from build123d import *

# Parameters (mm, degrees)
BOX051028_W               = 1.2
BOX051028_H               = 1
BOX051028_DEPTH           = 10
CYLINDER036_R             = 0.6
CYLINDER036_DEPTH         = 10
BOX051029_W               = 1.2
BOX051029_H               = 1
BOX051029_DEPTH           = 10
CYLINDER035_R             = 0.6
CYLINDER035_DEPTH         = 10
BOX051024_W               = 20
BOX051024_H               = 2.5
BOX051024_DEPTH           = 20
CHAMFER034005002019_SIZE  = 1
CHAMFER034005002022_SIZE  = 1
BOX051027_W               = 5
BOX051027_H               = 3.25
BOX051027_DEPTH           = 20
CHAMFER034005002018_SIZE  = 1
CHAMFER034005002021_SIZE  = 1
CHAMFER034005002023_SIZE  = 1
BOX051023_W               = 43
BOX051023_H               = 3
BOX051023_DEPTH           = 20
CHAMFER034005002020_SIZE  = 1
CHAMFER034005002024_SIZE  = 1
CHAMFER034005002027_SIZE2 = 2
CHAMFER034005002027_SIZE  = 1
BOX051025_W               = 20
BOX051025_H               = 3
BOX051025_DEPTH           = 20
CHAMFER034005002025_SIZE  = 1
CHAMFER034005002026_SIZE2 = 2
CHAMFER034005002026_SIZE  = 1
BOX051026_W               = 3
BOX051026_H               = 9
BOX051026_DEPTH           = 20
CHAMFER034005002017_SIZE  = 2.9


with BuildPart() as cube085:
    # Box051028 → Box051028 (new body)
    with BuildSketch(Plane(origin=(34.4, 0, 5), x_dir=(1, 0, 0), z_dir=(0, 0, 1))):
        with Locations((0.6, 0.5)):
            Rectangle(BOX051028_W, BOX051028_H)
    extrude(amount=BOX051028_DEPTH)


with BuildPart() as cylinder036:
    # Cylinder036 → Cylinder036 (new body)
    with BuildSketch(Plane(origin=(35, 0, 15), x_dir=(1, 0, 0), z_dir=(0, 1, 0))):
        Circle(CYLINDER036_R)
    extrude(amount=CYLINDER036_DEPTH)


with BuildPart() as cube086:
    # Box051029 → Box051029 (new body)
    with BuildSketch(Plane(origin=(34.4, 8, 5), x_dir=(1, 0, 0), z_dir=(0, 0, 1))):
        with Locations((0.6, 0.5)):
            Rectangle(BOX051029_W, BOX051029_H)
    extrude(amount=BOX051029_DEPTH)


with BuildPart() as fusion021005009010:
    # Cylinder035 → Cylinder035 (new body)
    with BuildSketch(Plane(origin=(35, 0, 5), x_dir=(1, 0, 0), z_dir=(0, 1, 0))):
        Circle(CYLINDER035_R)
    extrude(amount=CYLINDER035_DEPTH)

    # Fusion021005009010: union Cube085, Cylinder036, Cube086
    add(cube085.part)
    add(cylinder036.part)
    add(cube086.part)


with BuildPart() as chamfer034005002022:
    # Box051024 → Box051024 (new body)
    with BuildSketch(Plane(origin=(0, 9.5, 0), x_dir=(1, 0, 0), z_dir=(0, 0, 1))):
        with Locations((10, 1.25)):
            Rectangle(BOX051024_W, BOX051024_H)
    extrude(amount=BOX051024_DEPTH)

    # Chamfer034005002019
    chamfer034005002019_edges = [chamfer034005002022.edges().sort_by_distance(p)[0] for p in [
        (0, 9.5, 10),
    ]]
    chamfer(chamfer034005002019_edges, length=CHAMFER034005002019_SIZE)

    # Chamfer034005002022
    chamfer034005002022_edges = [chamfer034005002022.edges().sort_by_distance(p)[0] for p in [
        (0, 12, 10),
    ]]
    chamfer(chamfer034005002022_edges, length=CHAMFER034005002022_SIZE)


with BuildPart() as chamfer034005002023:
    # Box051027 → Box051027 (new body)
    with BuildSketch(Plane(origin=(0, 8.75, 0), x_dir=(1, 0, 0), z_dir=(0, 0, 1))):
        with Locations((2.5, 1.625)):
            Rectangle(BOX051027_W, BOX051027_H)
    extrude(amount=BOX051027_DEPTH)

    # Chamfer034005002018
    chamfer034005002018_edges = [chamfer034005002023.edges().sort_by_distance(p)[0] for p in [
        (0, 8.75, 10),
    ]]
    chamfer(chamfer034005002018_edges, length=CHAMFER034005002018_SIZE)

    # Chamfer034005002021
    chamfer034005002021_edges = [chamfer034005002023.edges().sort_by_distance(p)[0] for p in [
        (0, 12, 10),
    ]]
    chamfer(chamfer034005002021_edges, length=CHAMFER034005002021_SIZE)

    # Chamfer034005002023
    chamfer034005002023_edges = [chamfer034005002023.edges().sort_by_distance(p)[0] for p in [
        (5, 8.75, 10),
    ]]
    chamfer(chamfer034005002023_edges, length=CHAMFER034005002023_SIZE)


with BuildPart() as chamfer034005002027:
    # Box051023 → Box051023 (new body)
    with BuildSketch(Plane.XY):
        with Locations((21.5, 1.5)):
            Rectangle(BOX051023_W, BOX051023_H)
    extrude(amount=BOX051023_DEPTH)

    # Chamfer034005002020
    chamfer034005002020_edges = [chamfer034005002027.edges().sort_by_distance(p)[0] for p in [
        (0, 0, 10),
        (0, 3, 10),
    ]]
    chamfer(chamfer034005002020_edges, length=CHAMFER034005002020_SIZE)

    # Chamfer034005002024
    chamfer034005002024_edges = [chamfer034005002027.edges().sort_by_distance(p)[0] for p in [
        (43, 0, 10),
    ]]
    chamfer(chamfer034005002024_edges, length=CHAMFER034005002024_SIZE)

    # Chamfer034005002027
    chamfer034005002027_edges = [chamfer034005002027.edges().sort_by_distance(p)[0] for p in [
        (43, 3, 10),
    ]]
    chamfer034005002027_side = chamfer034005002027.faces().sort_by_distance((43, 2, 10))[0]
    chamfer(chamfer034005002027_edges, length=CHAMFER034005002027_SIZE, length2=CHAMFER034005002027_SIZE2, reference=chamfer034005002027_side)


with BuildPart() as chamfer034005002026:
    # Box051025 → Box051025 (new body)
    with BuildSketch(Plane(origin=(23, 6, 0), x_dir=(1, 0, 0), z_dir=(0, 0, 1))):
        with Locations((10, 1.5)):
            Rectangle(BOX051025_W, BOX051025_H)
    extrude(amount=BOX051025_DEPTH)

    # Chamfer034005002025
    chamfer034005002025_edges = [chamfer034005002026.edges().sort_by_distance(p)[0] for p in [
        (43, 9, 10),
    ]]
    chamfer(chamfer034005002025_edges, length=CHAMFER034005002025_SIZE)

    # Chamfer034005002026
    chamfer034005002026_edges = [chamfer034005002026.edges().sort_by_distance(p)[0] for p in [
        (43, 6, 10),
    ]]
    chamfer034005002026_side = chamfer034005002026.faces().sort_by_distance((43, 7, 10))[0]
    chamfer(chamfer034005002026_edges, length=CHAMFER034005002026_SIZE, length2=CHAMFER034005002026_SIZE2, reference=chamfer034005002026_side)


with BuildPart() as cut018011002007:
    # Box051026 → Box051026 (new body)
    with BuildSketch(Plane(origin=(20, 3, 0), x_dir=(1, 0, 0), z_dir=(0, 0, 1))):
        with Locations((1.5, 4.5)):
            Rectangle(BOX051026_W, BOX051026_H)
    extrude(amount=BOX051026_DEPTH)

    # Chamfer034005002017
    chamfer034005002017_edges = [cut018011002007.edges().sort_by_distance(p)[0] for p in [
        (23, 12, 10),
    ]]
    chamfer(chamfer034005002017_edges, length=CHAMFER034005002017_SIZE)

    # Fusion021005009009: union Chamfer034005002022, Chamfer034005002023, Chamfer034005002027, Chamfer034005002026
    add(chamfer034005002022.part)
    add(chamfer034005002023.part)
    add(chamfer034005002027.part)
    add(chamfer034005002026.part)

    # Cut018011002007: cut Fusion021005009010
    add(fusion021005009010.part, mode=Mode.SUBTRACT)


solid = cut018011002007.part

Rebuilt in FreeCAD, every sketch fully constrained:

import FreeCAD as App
import Part
import Sketcher
from FreeCAD import Vector


def edges_at(feature, points):
    """Names of the edges that pass closest to the given points."""
    edges = feature.Shape.Edges
    near = lambda p: min(range(len(edges)), key=lambda i: edges[i].distToShape(Part.Vertex(*p))[0])
    return sorted({f"Edge{near(p) + 1}" for p in points})

doc = App.newDocument("Part")
body = doc.addObject("PartDesign::Body", "Body")

# Sketch on XY plane
sketch1 = body.newObject("Sketcher::SketchObject", "Sketch")
sketch1.AttachmentSupport = (doc.getObject("XY_Plane"), [""])
sketch1.MapMode = "FlatFace"
sketch1.AttachmentOffset = App.Placement(Vector(0, 0, 5), App.Rotation())
sketch1.addGeometry(Part.LineSegment(Vector(34.4, 1, 0), Vector(34.4, 0, 0)), False)
sketch1.addGeometry(Part.LineSegment(Vector(34.4, 0, 0), Vector(35.6, 0, 0)), False)
sketch1.addGeometry(Part.LineSegment(Vector(35.6, 0, 0), Vector(35.6, 1, 0)), False)
sketch1.addGeometry(Part.LineSegment(Vector(35.6, 1, 0), Vector(34.4, 1, 0)), False)
sketch1.addConstraint(Sketcher.Constraint("Coincident", 0, 2, 1, 1))
sketch1.addConstraint(Sketcher.Constraint("Coincident", 1, 2, 2, 1))
sketch1.addConstraint(Sketcher.Constraint("Coincident", 2, 2, 3, 1))
sketch1.addConstraint(Sketcher.Constraint("Coincident", 3, 2, 0, 1))
sketch1.addConstraint(Sketcher.Constraint("Vertical", 0))
sketch1.addConstraint(Sketcher.Constraint("Horizontal", 1))
sketch1.addConstraint(Sketcher.Constraint("Vertical", 2))
sketch1.addConstraint(Sketcher.Constraint("Horizontal", 3))
sketch1.addConstraint(Sketcher.Constraint("PointOnObject", 0, 2, -1))
sketch1.addConstraint(Sketcher.Constraint("DistanceY", 0, 2, 0, 1, 1.0))
sketch1.addConstraint(Sketcher.Constraint("DistanceX", 1, 1, 1, 2, 1.2))
sketch1.addConstraint(Sketcher.Constraint("DistanceX", -1, 1, 0, 2, 34.4))
pad1 = body.newObject("PartDesign::Pad", "Pad")
pad1.Profile = sketch1
pad1.Length = 10
body2 = doc.addObject("PartDesign::Body", "Body001")

# Sketch on XZ plane
sketch2 = body2.newObject("Sketcher::SketchObject", "Sketch001")
sketch2.AttachmentSupport = (doc.getObject("XZ_Plane001"), [""])
sketch2.MapMode = "FlatFace"
sketch2.addGeometry(Part.Circle(Vector(35, 15, 0), Vector(0, 0, 1), 0.6), False)
sketch2.addConstraint(Sketcher.Constraint("Diameter", 0, 1.2))
sketch2.addConstraint(Sketcher.Constraint("DistanceX", -1, 1, 0, 3, 35.0))
sketch2.addConstraint(Sketcher.Constraint("DistanceY", -1, 1, 0, 3, 15.0))
pad2 = body2.newObject("PartDesign::Pad", "Pad001")
pad2.Profile = sketch2
pad2.Length = 10
pad2.Reversed = True
body3 = doc.addObject("PartDesign::Body", "Body002")

# Sketch on XY plane
sketch3 = body3.newObject("Sketcher::SketchObject", "Sketch002")
sketch3.AttachmentSupport = (doc.getObject("XY_Plane002"), [""])
sketch3.MapMode = "FlatFace"
sketch3.AttachmentOffset = App.Placement(Vector(0, 0, 5), App.Rotation())
sketch3.addGeometry(Part.LineSegment(Vector(34.4, 9, 0), Vector(34.4, 8, 0)), False)
sketch3.addGeometry(Part.LineSegment(Vector(34.4, 8, 0), Vector(35.6, 8, 0)), False)
sketch3.addGeometry(Part.LineSegment(Vector(35.6, 8, 0), Vector(35.6, 9, 0)), False)
sketch3.addGeometry(Part.LineSegment(Vector(35.6, 9, 0), Vector(34.4, 9, 0)), False)
sketch3.addConstraint(Sketcher.Constraint("Coincident", 0, 2, 1, 1))
sketch3.addConstraint(Sketcher.Constraint("Coincident", 1, 2, 2, 1))
sketch3.addConstraint(Sketcher.Constraint("Coincident", 2, 2, 3, 1))
sketch3.addConstraint(Sketcher.Constraint("Coincident", 3, 2, 0, 1))
sketch3.addConstraint(Sketcher.Constraint("Vertical", 0))
sketch3.addConstraint(Sketcher.Constraint("Horizontal", 1))
sketch3.addConstraint(Sketcher.Constraint("Vertical", 2))
sketch3.addConstraint(Sketcher.Constraint("Horizontal", 3))
sketch3.addConstraint(Sketcher.Constraint("DistanceY", 0, 2, 0, 1, 1.0))
sketch3.addConstraint(Sketcher.Constraint("DistanceX", 1, 1, 1, 2, 1.2))
sketch3.addConstraint(Sketcher.Constraint("DistanceY", -1, 1, 0, 2, 8.0))
sketch3.addConstraint(Sketcher.Constraint("DistanceX", -1, 1, 0, 2, 34.4))
pad3 = body3.newObject("PartDesign::Pad", "Pad002")
pad3.Profile = sketch3
pad3.Length = 10
body4 = doc.addObject("PartDesign::Body", "Body003")

# Sketch on XZ plane
sketch4 = body4.newObject("Sketcher::SketchObject", "Sketch003")
sketch4.AttachmentSupport = (doc.getObject("XZ_Plane003"), [""])
sketch4.MapMode = "FlatFace"
sketch4.addGeometry(Part.Circle(Vector(35, 5, 0), Vector(0, 0, 1), 0.6), False)
sketch4.addConstraint(Sketcher.Constraint("Diameter", 0, 1.2))
sketch4.addConstraint(Sketcher.Constraint("DistanceX", -1, 1, 0, 3, 35.0))
sketch4.addConstraint(Sketcher.Constraint("DistanceY", -1, 1, 0, 3, 5.0))
pad4 = body4.newObject("PartDesign::Pad", "Pad003")
pad4.Profile = sketch4
pad4.Length = 10
pad4.Reversed = True
doc.recompute()

boolean = body4.newObject("PartDesign::Boolean", "Boolean")
boolean.Type = "Fuse"
boolean.addObjects([body])
doc.recompute()

boolean2 = body4.newObject("PartDesign::Boolean", "Boolean001")
boolean2.Type = "Fuse"
boolean2.addObjects([body2])
doc.recompute()

boolean3 = body4.newObject("PartDesign::Boolean", "Boolean002")
boolean3.Type = "Fuse"
boolean3.addObjects([body3])
body5 = doc.addObject("PartDesign::Body", "Body004")

# Sketch on XY plane
sketch5 = body5.newObject("Sketcher::SketchObject", "Sketch004")
sketch5.AttachmentSupport = (doc.getObject("XY_Plane004"), [""])
sketch5.MapMode = "FlatFace"
sketch5.addGeometry(Part.LineSegment(Vector(0, 12, 0), Vector(0, 9.5, 0)), False)
sketch5.addGeometry(Part.LineSegment(Vector(0, 9.5, 0), Vector(20, 9.5, 0)), False)
sketch5.addGeometry(Part.LineSegment(Vector(20, 9.5, 0), Vector(20, 12, 0)), False)
sketch5.addGeometry(Part.LineSegment(Vector(20, 12, 0), Vector(0, 12, 0)), False)
sketch5.addConstraint(Sketcher.Constraint("Coincident", 0, 2, 1, 1))
sketch5.addConstraint(Sketcher.Constraint("Coincident", 1, 2, 2, 1))
sketch5.addConstraint(Sketcher.Constraint("Coincident", 2, 2, 3, 1))
sketch5.addConstraint(Sketcher.Constraint("Coincident", 3, 2, 0, 1))
sketch5.addConstraint(Sketcher.Constraint("Vertical", 0))
sketch5.addConstraint(Sketcher.Constraint("Horizontal", 1))
sketch5.addConstraint(Sketcher.Constraint("Vertical", 2))
sketch5.addConstraint(Sketcher.Constraint("Horizontal", 3))
sketch5.addConstraint(Sketcher.Constraint("PointOnObject", 0, 2, -2))
sketch5.addConstraint(Sketcher.Constraint("DistanceX", 1, 1, 1, 2, 20.0))
sketch5.addConstraint(Sketcher.Constraint("DistanceY", 0, 2, 0, 1, 2.5))
sketch5.addConstraint(Sketcher.Constraint("DistanceY", -1, 1, 2, 2, 12.0))
pad5 = body5.newObject("PartDesign::Pad", "Pad004")
pad5.Profile = sketch5
pad5.Length = 20
doc.recompute()

chamfer = body5.newObject("PartDesign::Chamfer", "Chamfer")
chamfer.Base = (pad5, edges_at(pad5, [(0, 9.5, 10)]))
chamfer.Size = 1
doc.recompute()

chamfer2 = body5.newObject("PartDesign::Chamfer", "Chamfer001")
chamfer2.Base = (chamfer, edges_at(chamfer, [(0, 12, 10)]))
chamfer2.Size = 1
body6 = doc.addObject("PartDesign::Body", "Body005")

# Sketch on XY plane
sketch6 = body6.newObject("Sketcher::SketchObject", "Sketch005")
sketch6.AttachmentSupport = (doc.getObject("XY_Plane005"), [""])
sketch6.MapMode = "FlatFace"
sketch6.addGeometry(Part.LineSegment(Vector(0, 12, 0), Vector(0, 8.8, 0)), False)
sketch6.addGeometry(Part.LineSegment(Vector(0, 8.8, 0), Vector(5, 8.8, 0)), False)
sketch6.addGeometry(Part.LineSegment(Vector(5, 8.8, 0), Vector(5, 12, 0)), False)
sketch6.addGeometry(Part.LineSegment(Vector(5, 12, 0), Vector(0, 12, 0)), False)
sketch6.addConstraint(Sketcher.Constraint("Coincident", 0, 2, 1, 1))
sketch6.addConstraint(Sketcher.Constraint("Coincident", 1, 2, 2, 1))
sketch6.addConstraint(Sketcher.Constraint("Coincident", 2, 2, 3, 1))
sketch6.addConstraint(Sketcher.Constraint("Coincident", 3, 2, 0, 1))
sketch6.addConstraint(Sketcher.Constraint("Vertical", 0))
sketch6.addConstraint(Sketcher.Constraint("Horizontal", 1))
sketch6.addConstraint(Sketcher.Constraint("Vertical", 2))
sketch6.addConstraint(Sketcher.Constraint("Horizontal", 3))
sketch6.addConstraint(Sketcher.Constraint("PointOnObject", 0, 2, -2))
sketch6.addConstraint(Sketcher.Constraint("DistanceX", 1, 1, 1, 2, 5.0))
sketch6.addConstraint(Sketcher.Constraint("DistanceY", -1, 1, 2, 2, 12.0))
sketch6.addConstraint(Sketcher.Constraint("DistanceY", 0, 2, 0, 1, 3.25))
pad6 = body6.newObject("PartDesign::Pad", "Pad005")
pad6.Profile = sketch6
pad6.Length = 20
doc.recompute()

chamfer3 = body6.newObject("PartDesign::Chamfer", "Chamfer002")
chamfer3.Base = (pad6, edges_at(pad6, [(0, 8.75, 10)]))
chamfer3.Size = 1
doc.recompute()

chamfer4 = body6.newObject("PartDesign::Chamfer", "Chamfer003")
chamfer4.Base = (chamfer3, edges_at(chamfer3, [(0, 12, 10)]))
chamfer4.Size = 1
doc.recompute()

chamfer5 = body6.newObject("PartDesign::Chamfer", "Chamfer004")
chamfer5.Base = (chamfer4, edges_at(chamfer4, [(5, 8.75, 10)]))
chamfer5.Size = 1
body7 = doc.addObject("PartDesign::Body", "Body006")

# Sketch on XY plane
sketch7 = body7.newObject("Sketcher::SketchObject", "Sketch006")
sketch7.AttachmentSupport = (doc.getObject("XY_Plane006"), [""])
sketch7.MapMode = "FlatFace"
sketch7.addGeometry(Part.LineSegment(Vector(0, 3, 0), Vector(0, 0, 0)), False)
sketch7.addGeometry(Part.LineSegment(Vector(0, 0, 0), Vector(43, 0, 0)), False)
sketch7.addGeometry(Part.LineSegment(Vector(43, 0, 0), Vector(43, 3, 0)), False)
sketch7.addGeometry(Part.LineSegment(Vector(43, 3, 0), Vector(0, 3, 0)), False)
sketch7.addConstraint(Sketcher.Constraint("Coincident", 0, 2, 1, 1))
sketch7.addConstraint(Sketcher.Constraint("Coincident", 1, 2, 2, 1))
sketch7.addConstraint(Sketcher.Constraint("Coincident", 2, 2, 3, 1))
sketch7.addConstraint(Sketcher.Constraint("Coincident", 3, 2, 0, 1))
sketch7.addConstraint(Sketcher.Constraint("Vertical", 0))
sketch7.addConstraint(Sketcher.Constraint("Horizontal", 1))
sketch7.addConstraint(Sketcher.Constraint("Vertical", 2))
sketch7.addConstraint(Sketcher.Constraint("Horizontal", 3))
sketch7.addConstraint(Sketcher.Constraint("Coincident", 0, 2, -1, 1))
sketch7.addConstraint(Sketcher.Constraint("DistanceX", 1, 1, 1, 2, 43.0))
sketch7.addConstraint(Sketcher.Constraint("DistanceY", 0, 2, 0, 1, 3.0))
pad7 = body7.newObject("PartDesign::Pad", "Pad006")
pad7.Profile = sketch7
pad7.Length = 20
doc.recompute()

chamfer6 = body7.newObject("PartDesign::Chamfer", "Chamfer005")
chamfer6.Base = (pad7, edges_at(pad7, [(0, 0, 10), (0, 3, 10)]))
chamfer6.Size = 1
doc.recompute()

chamfer7 = body7.newObject("PartDesign::Chamfer", "Chamfer006")
chamfer7.Base = (chamfer6, edges_at(chamfer6, [(43, 0, 10)]))
chamfer7.Size = 1
doc.recompute()

chamfer8 = body7.newObject("PartDesign::Chamfer", "Chamfer007")
chamfer8.Base = (chamfer7, edges_at(chamfer7, [(43, 3, 10)]))
chamfer8.ChamferType = "Two distances"
chamfer8.Size = 1
chamfer8.Size2 = 2
body8 = doc.addObject("PartDesign::Body", "Body007")

# Sketch on XY plane
sketch8 = body8.newObject("Sketcher::SketchObject", "Sketch007")
sketch8.AttachmentSupport = (doc.getObject("XY_Plane007"), [""])
sketch8.MapMode = "FlatFace"
sketch8.addGeometry(Part.LineSegment(Vector(23, 9, 0), Vector(23, 6, 0)), False)
sketch8.addGeometry(Part.LineSegment(Vector(23, 6, 0), Vector(43, 6, 0)), False)
sketch8.addGeometry(Part.LineSegment(Vector(43, 6, 0), Vector(43, 9, 0)), False)
sketch8.addGeometry(Part.LineSegment(Vector(43, 9, 0), Vector(23, 9, 0)), False)
sketch8.addConstraint(Sketcher.Constraint("Coincident", 0, 2, 1, 1))
sketch8.addConstraint(Sketcher.Constraint("Coincident", 1, 2, 2, 1))
sketch8.addConstraint(Sketcher.Constraint("Coincident", 2, 2, 3, 1))
sketch8.addConstraint(Sketcher.Constraint("Coincident", 3, 2, 0, 1))
sketch8.addConstraint(Sketcher.Constraint("Vertical", 0))
sketch8.addConstraint(Sketcher.Constraint("Horizontal", 1))
sketch8.addConstraint(Sketcher.Constraint("Vertical", 2))
sketch8.addConstraint(Sketcher.Constraint("Horizontal", 3))
sketch8.addConstraint(Sketcher.Constraint("DistanceX", 1, 1, 1, 2, 20.0))
sketch8.addConstraint(Sketcher.Constraint("DistanceY", 0, 2, 0, 1, 3.0))
sketch8.addConstraint(Sketcher.Constraint("DistanceX", -1, 1, 0, 2, 23.0))
sketch8.addConstraint(Sketcher.Constraint("DistanceY", -1, 1, 0, 2, 6.0))
pad8 = body8.newObject("PartDesign::Pad", "Pad007")
pad8.Profile = sketch8
pad8.Length = 20
doc.recompute()

chamfer9 = body8.newObject("PartDesign::Chamfer", "Chamfer008")
chamfer9.Base = (pad8, edges_at(pad8, [(43, 9, 10)]))
chamfer9.Size = 1
doc.recompute()

chamfer10 = body8.newObject("PartDesign::Chamfer", "Chamfer009")
chamfer10.Base = (chamfer9, edges_at(chamfer9, [(43, 6, 10)]))
chamfer10.ChamferType = "Two distances"
chamfer10.Size = 1
chamfer10.Size2 = 2
body9 = doc.addObject("PartDesign::Body", "Body008")

# Sketch on XY plane
sketch9 = body9.newObject("Sketcher::SketchObject", "Sketch008")
sketch9.AttachmentSupport = (doc.getObject("XY_Plane008"), [""])
sketch9.MapMode = "FlatFace"
sketch9.addGeometry(Part.LineSegment(Vector(20, 12, 0), Vector(20, 3, 0)), False)
sketch9.addGeometry(Part.LineSegment(Vector(20, 3, 0), Vector(23, 3, 0)), False)
sketch9.addGeometry(Part.LineSegment(Vector(23, 3, 0), Vector(23, 12, 0)), False)
sketch9.addGeometry(Part.LineSegment(Vector(23, 12, 0), Vector(20, 12, 0)), False)
sketch9.addConstraint(Sketcher.Constraint("Coincident", 0, 2, 1, 1))
sketch9.addConstraint(Sketcher.Constraint("Coincident", 1, 2, 2, 1))
sketch9.addConstraint(Sketcher.Constraint("Coincident", 2, 2, 3, 1))
sketch9.addConstraint(Sketcher.Constraint("Coincident", 3, 2, 0, 1))
sketch9.addConstraint(Sketcher.Constraint("Vertical", 0))
sketch9.addConstraint(Sketcher.Constraint("Horizontal", 1))
sketch9.addConstraint(Sketcher.Constraint("Vertical", 2))
sketch9.addConstraint(Sketcher.Constraint("Horizontal", 3))
sketch9.addConstraint(Sketcher.Constraint("DistanceX", 1, 1, 1, 2, 3.0))
sketch9.addConstraint(Sketcher.Constraint("DistanceY", 0, 2, 0, 1, 9.0))
sketch9.addConstraint(Sketcher.Constraint("DistanceX", -1, 1, 0, 2, 20.0))
sketch9.addConstraint(Sketcher.Constraint("DistanceY", -1, 1, 0, 2, 3.0))
pad9 = body9.newObject("PartDesign::Pad", "Pad008")
pad9.Profile = sketch9
pad9.Length = 20
doc.recompute()

chamfer11 = body9.newObject("PartDesign::Chamfer", "Chamfer010")
chamfer11.Base = (pad9, edges_at(pad9, [(23, 12, 10)]))
chamfer11.Size = 2.9
doc.recompute()

boolean4 = body9.newObject("PartDesign::Boolean", "Boolean003")
boolean4.Type = "Fuse"
boolean4.addObjects([body5])
doc.recompute()

boolean5 = body9.newObject("PartDesign::Boolean", "Boolean004")
boolean5.Type = "Fuse"
boolean5.addObjects([body6])
doc.recompute()

boolean6 = body9.newObject("PartDesign::Boolean", "Boolean005")
boolean6.Type = "Fuse"
boolean6.addObjects([body7])
doc.recompute()

boolean7 = body9.newObject("PartDesign::Boolean", "Boolean006")
boolean7.Type = "Fuse"
boolean7.addObjects([body8])
doc.recompute()

boolean8 = body9.newObject("PartDesign::Boolean", "Boolean007")
boolean8.Type = "Cut"
boolean8.addObjects([body4])

doc.recompute()
